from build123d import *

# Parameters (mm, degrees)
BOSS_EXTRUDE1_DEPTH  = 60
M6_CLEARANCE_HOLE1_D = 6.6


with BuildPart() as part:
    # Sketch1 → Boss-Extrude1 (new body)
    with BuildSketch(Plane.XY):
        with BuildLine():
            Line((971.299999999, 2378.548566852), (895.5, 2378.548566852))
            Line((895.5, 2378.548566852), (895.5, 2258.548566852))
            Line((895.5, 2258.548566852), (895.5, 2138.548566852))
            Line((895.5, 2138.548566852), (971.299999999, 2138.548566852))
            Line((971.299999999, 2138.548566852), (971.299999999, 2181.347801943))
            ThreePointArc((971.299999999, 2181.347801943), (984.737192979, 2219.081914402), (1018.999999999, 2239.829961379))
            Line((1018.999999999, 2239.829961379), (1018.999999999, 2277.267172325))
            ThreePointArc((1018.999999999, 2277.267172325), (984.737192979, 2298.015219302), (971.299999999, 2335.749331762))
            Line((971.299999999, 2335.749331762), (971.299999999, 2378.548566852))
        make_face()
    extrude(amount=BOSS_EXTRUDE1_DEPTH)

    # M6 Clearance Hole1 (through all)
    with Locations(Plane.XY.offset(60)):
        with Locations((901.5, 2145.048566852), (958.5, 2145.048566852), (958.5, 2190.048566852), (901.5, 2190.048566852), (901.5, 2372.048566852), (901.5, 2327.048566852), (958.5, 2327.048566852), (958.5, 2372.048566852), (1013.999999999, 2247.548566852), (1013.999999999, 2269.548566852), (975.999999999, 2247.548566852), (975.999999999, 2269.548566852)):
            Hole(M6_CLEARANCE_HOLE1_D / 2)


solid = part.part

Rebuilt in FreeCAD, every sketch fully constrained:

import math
import FreeCAD as App
import Part
import Sketcher
from FreeCAD import Vector
Q = App.Units.Quantity

doc = App.newDocument("Part")
body = doc.addObject("PartDesign::Body", "Body")

sketch1 = doc.addObject("Sketcher::SketchObject", "Sketch")
body.addObject(sketch1)
sketch1.AttachmentSupport = (doc.XY_Plane, [""])
sketch1.MapMode = "FlatFace"
sketch1.addGeometry(Part.LineSegment(Vector(971.3, 2378.548567, 0), Vector(895.5, 2378.548567, 0)), False)
sketch1.addGeometry(Part.LineSegment(Vector(895.5, 2378.548567, 0), Vector(895.5, 2138.548567, 0)), False)
sketch1.addGeometry(Part.LineSegment(Vector(895.5, 2138.548567, 0), Vector(971.3, 2138.548567, 0)), False)
sketch1.addGeometry(Part.LineSegment(Vector(971.3, 2138.548567, 0), Vector(971.3, 2181.347802, 0)), False)
sketch1.addGeometry(Part.ArcOfCircle(Part.Circle(Vector(1031.000765, 2181.347802, 0), Vector(0, 0, 1), 59.700765), math.radians(101.596335), math.radians(180)), False)
sketch1.addGeometry(Part.LineSegment(Vector(1019, 2239.829961, 0), Vector(1019, 2277.267172, 0)), False)
sketch1.addGeometry(Part.ArcOfCircle(Part.Circle(Vector(1031.000765, 2335.749332, 0), Vector(0, 0, 1), 59.700765), math.radians(180), math.radians(258.403665)), False)
sketch1.addGeometry(Part.LineSegment(Vector(971.3, 2335.749332, 0), Vector(971.3, 2378.548567, 0)), False)
sketch1.addConstraint(Sketcher.Constraint("Coincident", 0, 2, 1, 1))
sketch1.addConstraint(Sketcher.Constraint("Coincident", 1, 2, 2, 1))
sketch1.addConstraint(Sketcher.Constraint("Coincident", 2, 2, 3, 1))
sketch1.addConstraint(Sketcher.Constraint("Tangent", 3, 2, 4, 2))
sketch1.addConstraint(Sketcher.Constraint("Coincident", 4, 1, 5, 1))
sketch1.addConstraint(Sketcher.Constraint("Coincident", 5, 2, 6, 2))
sketch1.addConstraint(Sketcher.Constraint("Tangent", 6, 1, 7, 1))
sketch1.addConstraint(Sketcher.Constraint("Coincident", 7, 2, 0, 1))
sketch1.addConstraint(Sketcher.Constraint("Horizontal", 0))
sketch1.addConstraint(Sketcher.Constraint("Vertical", 1))
sketch1.addConstraint(Sketcher.Constraint("Horizontal", 2))
sketch1.addConstraint(Sketcher.Constraint("Vertical", 3))
sketch1.addConstraint(Sketcher.Constraint("Vertical", 5))
sketch1.addConstraint(Sketcher.Constraint("Vertical", 7))
sketch1.addConstraint(Sketcher.Constraint("Equal", 4, 6))
sketch1.addConstraint(Sketcher.Constraint("Vertical", 4, 3, 6, 3))
sketch1.addConstraint(Sketcher.Constraint("Equal", 3, 7))
sketch1.addConstraint(Sketcher.Constraint("DistanceY", 1, 2, 1, 1, Q("240 mm")))
sketch1.addConstraint(Sketcher.Constraint("DistanceX", 0, 2, 0, 1, Q("75.8 mm")))
sketch1.addConstraint(Sketcher.Constraint("DistanceX", -1, 1, 4, 1, Q("1019 mm")))
sketch1.addConstraint(Sketcher.Constraint("DistanceX", -1, 1, 0, 2, Q("895.5 mm")))
sketch1.addConstraint(Sketcher.Constraint("Radius", 4, Q("59.700765 mm")))
sketch1.addConstraint(Sketcher.Constraint("DistanceY", 5, 1, 5, 2, Q("37.437211 mm")))
sketch1.addConstraint(Sketcher.Constraint("DistanceY", -1, 1, 4, 3, Q("2181.347802 mm")))
pad1 = doc.addObject("PartDesign::Pad", "Pad")
body.addObject(pad1)
pad1.Profile = sketch1
pad1.Length = 60

sketch2 = doc.addObject("Sketcher::SketchObject", "Sketch001")
body.addObject(sketch2)
sketch2.AttachmentSupport = (doc.XY_Plane, [""])
sketch2.MapMode = "FlatFace"
sketch2.AttachmentOffset = App.Placement(Vector(0, 0, 60), App.Rotation())
sketch2.addGeometry(Part.Circle(Vector(901.5, 2145.048567, 0), Vector(0, 0, 1), 3.3), False)
sketch2.addGeometry(Part.Circle(Vector(958.5, 2145.048567, 0), Vector(0, 0, 1), 3.3), False)
sketch2.addGeometry(Part.Circle(Vector(958.5, 2190.048567, 0), Vector(0, 0, 1), 3.3), False)
sketch2.addGeometry(Part.Circle(Vector(901.5, 2190.048567, 0), Vector(0, 0, 1), 3.3), False)
sketch2.addGeometry(Part.Circle(Vector(901.5, 2372.048567, 0), Vector(0, 0, 1), 3.3), False)
sketch2.addGeometry(Part.Circle(Vector(901.5, 2327.048567, 0), Vector(0, 0, 1), 3.3), False)
sketch2.addGeometry(Part.Circle(Vector(958.5, 2327.048567, 0), Vector(0, 0, 1), 3.3), False)
sketch2.addGeometry(Part.Circle(Vector(958.5, 2372.048567, 0), Vector(0, 0, 1), 3.3), False)
sketch2.addGeometry(Part.Circle(Vector(1014, 2247.548567, 0), Vector(0, 0, 1), 3.3), False)
sketch2.addGeometry(Part.Circle(Vector(1014, 2269.548567, 0), Vector(0, 0, 1), 3.3), False)
sketch2.addGeometry(Part.Circle(Vector(976, 2247.548567, 0), Vector(0, 0, 1), 3.3), False)
sketch2.addGeometry(Part.Circle(Vector(976, 2269.548567, 0), Vector(0, 0, 1), 3.3), False)
sketch2.addConstraint(Sketcher.Constraint("Equal", 0, 1))
sketch2.addConstraint(Sketcher.Constraint("Equal", 1, 2))
sketch2.addConstraint(Sketcher.Constraint("Equal", 2, 3))
sketch2.addConstraint(Sketcher.Constraint("Equal", 3, 4))
sketch2.addConstraint(Sketcher.Constraint("Equal", 4, 5))
sketch2.addConstraint(Sketcher.Constraint("Equal", 5, 6))
sketch2.addConstraint(Sketcher.Constraint("Equal", 6, 7))
sketch2.addConstraint(Sketcher.Constraint("Equal", 7, 8))
sketch2.addConstraint(Sketcher.Constraint("Equal", 8, 9))
sketch2.addConstraint(Sketcher.Constraint("Equal", 9, 10))
sketch2.addConstraint(Sketcher.Constraint("Equal", 10, 11))
sketch2.addConstraint(Sketcher.Constraint("Horizontal", 0, 3, 1, 3))
sketch2.addConstraint(Sketcher.Constraint("Horizontal", 2, 3, 3, 3))
sketch2.addConstraint(Sketcher.Constraint("Horizontal", 5, 3, 6, 3))
sketch2.addConstraint(Sketcher.Constraint("Horizontal", 4, 3, 7, 3))
sketch2.addConstraint(Sketcher.Constraint("Horizontal", 8, 3, 10, 3))
sketch2.addConstraint(Sketcher.Constraint("Horizontal", 9, 3, 11, 3))
sketch2.addConstraint(Sketcher.Constraint("Vertical", 1, 3, 2, 3))
sketch2.addConstraint(Sketcher.Constraint("Vertical", 0, 3, 3, 3))
sketch2.addConstraint(Sketcher.Constraint("Vertical", 3, 3, 4, 3))
sketch2.addConstraint(Sketcher.Constraint("Vertical", 4, 3, 5, 3))
sketch2.addConstraint(Sketcher.Constraint("Vertical", 2, 3, 6, 3))
sketch2.addConstraint(Sketcher.Constraint("Vertical", 6, 3, 7, 3))
sketch2.addConstraint(Sketcher.Constraint("Vertical", 8, 3, 9, 3))
sketch2.addConstraint(Sketcher.Constraint("Vertical", 10, 3, 11, 3))
sketch2.addConstraint(Sketcher.Constraint("Diameter", 0, Q("6.6 mm")))
sketch2.addConstraint(Sketcher.Constraint("DistanceX", -1, 1, 8, 3, Q("1014 mm")))
sketch2.addConstraint(Sketcher.Constraint("DistanceX", -1, 1, 10, 3, Q("976 mm")))
sketch2.addConstraint(Sketcher.Constraint("DistanceX", 0, 3, 1, 3, Q("57 mm")))
sketch2.addConstraint(Sketcher.Constraint("DistanceY", 1, 3, 2, 3, Q("45 mm")))
sketch2.addConstraint(Sketcher.Constraint("DistanceY", 3, 3, 4, 3, Q("182 mm")))
sketch2.addConstraint(Sketcher.Constraint("DistanceY", 5, 3, 4, 3, Q("45 mm")))
sketch2.addConstraint(Sketcher.Constraint("DistanceY", 8, 3, 9, 3, Q("22 mm")))
sketch2.addConstraint(Sketcher.Constraint("DistanceX", -1, 1, 0, 3, Q("901.5 mm")))
sketch2.addConstraint(Sketcher.Constraint("DistanceY", 2, 3, 8, 3, Q("57.5 mm")))
sketch2.addConstraint(Sketcher.Constraint("DistanceY", -1, 1, 0, 3, Q("2145.048567 mm")))
doc.recompute()
hole = doc.addObject("PartDesign::Hole", "Hole")
body.addObject(hole)
hole.Profile = sketch2
hole.ThreadType = "None"
hole.Diameter = 6.6
hole.DepthType = "ThroughAll"

doc.recompute()
